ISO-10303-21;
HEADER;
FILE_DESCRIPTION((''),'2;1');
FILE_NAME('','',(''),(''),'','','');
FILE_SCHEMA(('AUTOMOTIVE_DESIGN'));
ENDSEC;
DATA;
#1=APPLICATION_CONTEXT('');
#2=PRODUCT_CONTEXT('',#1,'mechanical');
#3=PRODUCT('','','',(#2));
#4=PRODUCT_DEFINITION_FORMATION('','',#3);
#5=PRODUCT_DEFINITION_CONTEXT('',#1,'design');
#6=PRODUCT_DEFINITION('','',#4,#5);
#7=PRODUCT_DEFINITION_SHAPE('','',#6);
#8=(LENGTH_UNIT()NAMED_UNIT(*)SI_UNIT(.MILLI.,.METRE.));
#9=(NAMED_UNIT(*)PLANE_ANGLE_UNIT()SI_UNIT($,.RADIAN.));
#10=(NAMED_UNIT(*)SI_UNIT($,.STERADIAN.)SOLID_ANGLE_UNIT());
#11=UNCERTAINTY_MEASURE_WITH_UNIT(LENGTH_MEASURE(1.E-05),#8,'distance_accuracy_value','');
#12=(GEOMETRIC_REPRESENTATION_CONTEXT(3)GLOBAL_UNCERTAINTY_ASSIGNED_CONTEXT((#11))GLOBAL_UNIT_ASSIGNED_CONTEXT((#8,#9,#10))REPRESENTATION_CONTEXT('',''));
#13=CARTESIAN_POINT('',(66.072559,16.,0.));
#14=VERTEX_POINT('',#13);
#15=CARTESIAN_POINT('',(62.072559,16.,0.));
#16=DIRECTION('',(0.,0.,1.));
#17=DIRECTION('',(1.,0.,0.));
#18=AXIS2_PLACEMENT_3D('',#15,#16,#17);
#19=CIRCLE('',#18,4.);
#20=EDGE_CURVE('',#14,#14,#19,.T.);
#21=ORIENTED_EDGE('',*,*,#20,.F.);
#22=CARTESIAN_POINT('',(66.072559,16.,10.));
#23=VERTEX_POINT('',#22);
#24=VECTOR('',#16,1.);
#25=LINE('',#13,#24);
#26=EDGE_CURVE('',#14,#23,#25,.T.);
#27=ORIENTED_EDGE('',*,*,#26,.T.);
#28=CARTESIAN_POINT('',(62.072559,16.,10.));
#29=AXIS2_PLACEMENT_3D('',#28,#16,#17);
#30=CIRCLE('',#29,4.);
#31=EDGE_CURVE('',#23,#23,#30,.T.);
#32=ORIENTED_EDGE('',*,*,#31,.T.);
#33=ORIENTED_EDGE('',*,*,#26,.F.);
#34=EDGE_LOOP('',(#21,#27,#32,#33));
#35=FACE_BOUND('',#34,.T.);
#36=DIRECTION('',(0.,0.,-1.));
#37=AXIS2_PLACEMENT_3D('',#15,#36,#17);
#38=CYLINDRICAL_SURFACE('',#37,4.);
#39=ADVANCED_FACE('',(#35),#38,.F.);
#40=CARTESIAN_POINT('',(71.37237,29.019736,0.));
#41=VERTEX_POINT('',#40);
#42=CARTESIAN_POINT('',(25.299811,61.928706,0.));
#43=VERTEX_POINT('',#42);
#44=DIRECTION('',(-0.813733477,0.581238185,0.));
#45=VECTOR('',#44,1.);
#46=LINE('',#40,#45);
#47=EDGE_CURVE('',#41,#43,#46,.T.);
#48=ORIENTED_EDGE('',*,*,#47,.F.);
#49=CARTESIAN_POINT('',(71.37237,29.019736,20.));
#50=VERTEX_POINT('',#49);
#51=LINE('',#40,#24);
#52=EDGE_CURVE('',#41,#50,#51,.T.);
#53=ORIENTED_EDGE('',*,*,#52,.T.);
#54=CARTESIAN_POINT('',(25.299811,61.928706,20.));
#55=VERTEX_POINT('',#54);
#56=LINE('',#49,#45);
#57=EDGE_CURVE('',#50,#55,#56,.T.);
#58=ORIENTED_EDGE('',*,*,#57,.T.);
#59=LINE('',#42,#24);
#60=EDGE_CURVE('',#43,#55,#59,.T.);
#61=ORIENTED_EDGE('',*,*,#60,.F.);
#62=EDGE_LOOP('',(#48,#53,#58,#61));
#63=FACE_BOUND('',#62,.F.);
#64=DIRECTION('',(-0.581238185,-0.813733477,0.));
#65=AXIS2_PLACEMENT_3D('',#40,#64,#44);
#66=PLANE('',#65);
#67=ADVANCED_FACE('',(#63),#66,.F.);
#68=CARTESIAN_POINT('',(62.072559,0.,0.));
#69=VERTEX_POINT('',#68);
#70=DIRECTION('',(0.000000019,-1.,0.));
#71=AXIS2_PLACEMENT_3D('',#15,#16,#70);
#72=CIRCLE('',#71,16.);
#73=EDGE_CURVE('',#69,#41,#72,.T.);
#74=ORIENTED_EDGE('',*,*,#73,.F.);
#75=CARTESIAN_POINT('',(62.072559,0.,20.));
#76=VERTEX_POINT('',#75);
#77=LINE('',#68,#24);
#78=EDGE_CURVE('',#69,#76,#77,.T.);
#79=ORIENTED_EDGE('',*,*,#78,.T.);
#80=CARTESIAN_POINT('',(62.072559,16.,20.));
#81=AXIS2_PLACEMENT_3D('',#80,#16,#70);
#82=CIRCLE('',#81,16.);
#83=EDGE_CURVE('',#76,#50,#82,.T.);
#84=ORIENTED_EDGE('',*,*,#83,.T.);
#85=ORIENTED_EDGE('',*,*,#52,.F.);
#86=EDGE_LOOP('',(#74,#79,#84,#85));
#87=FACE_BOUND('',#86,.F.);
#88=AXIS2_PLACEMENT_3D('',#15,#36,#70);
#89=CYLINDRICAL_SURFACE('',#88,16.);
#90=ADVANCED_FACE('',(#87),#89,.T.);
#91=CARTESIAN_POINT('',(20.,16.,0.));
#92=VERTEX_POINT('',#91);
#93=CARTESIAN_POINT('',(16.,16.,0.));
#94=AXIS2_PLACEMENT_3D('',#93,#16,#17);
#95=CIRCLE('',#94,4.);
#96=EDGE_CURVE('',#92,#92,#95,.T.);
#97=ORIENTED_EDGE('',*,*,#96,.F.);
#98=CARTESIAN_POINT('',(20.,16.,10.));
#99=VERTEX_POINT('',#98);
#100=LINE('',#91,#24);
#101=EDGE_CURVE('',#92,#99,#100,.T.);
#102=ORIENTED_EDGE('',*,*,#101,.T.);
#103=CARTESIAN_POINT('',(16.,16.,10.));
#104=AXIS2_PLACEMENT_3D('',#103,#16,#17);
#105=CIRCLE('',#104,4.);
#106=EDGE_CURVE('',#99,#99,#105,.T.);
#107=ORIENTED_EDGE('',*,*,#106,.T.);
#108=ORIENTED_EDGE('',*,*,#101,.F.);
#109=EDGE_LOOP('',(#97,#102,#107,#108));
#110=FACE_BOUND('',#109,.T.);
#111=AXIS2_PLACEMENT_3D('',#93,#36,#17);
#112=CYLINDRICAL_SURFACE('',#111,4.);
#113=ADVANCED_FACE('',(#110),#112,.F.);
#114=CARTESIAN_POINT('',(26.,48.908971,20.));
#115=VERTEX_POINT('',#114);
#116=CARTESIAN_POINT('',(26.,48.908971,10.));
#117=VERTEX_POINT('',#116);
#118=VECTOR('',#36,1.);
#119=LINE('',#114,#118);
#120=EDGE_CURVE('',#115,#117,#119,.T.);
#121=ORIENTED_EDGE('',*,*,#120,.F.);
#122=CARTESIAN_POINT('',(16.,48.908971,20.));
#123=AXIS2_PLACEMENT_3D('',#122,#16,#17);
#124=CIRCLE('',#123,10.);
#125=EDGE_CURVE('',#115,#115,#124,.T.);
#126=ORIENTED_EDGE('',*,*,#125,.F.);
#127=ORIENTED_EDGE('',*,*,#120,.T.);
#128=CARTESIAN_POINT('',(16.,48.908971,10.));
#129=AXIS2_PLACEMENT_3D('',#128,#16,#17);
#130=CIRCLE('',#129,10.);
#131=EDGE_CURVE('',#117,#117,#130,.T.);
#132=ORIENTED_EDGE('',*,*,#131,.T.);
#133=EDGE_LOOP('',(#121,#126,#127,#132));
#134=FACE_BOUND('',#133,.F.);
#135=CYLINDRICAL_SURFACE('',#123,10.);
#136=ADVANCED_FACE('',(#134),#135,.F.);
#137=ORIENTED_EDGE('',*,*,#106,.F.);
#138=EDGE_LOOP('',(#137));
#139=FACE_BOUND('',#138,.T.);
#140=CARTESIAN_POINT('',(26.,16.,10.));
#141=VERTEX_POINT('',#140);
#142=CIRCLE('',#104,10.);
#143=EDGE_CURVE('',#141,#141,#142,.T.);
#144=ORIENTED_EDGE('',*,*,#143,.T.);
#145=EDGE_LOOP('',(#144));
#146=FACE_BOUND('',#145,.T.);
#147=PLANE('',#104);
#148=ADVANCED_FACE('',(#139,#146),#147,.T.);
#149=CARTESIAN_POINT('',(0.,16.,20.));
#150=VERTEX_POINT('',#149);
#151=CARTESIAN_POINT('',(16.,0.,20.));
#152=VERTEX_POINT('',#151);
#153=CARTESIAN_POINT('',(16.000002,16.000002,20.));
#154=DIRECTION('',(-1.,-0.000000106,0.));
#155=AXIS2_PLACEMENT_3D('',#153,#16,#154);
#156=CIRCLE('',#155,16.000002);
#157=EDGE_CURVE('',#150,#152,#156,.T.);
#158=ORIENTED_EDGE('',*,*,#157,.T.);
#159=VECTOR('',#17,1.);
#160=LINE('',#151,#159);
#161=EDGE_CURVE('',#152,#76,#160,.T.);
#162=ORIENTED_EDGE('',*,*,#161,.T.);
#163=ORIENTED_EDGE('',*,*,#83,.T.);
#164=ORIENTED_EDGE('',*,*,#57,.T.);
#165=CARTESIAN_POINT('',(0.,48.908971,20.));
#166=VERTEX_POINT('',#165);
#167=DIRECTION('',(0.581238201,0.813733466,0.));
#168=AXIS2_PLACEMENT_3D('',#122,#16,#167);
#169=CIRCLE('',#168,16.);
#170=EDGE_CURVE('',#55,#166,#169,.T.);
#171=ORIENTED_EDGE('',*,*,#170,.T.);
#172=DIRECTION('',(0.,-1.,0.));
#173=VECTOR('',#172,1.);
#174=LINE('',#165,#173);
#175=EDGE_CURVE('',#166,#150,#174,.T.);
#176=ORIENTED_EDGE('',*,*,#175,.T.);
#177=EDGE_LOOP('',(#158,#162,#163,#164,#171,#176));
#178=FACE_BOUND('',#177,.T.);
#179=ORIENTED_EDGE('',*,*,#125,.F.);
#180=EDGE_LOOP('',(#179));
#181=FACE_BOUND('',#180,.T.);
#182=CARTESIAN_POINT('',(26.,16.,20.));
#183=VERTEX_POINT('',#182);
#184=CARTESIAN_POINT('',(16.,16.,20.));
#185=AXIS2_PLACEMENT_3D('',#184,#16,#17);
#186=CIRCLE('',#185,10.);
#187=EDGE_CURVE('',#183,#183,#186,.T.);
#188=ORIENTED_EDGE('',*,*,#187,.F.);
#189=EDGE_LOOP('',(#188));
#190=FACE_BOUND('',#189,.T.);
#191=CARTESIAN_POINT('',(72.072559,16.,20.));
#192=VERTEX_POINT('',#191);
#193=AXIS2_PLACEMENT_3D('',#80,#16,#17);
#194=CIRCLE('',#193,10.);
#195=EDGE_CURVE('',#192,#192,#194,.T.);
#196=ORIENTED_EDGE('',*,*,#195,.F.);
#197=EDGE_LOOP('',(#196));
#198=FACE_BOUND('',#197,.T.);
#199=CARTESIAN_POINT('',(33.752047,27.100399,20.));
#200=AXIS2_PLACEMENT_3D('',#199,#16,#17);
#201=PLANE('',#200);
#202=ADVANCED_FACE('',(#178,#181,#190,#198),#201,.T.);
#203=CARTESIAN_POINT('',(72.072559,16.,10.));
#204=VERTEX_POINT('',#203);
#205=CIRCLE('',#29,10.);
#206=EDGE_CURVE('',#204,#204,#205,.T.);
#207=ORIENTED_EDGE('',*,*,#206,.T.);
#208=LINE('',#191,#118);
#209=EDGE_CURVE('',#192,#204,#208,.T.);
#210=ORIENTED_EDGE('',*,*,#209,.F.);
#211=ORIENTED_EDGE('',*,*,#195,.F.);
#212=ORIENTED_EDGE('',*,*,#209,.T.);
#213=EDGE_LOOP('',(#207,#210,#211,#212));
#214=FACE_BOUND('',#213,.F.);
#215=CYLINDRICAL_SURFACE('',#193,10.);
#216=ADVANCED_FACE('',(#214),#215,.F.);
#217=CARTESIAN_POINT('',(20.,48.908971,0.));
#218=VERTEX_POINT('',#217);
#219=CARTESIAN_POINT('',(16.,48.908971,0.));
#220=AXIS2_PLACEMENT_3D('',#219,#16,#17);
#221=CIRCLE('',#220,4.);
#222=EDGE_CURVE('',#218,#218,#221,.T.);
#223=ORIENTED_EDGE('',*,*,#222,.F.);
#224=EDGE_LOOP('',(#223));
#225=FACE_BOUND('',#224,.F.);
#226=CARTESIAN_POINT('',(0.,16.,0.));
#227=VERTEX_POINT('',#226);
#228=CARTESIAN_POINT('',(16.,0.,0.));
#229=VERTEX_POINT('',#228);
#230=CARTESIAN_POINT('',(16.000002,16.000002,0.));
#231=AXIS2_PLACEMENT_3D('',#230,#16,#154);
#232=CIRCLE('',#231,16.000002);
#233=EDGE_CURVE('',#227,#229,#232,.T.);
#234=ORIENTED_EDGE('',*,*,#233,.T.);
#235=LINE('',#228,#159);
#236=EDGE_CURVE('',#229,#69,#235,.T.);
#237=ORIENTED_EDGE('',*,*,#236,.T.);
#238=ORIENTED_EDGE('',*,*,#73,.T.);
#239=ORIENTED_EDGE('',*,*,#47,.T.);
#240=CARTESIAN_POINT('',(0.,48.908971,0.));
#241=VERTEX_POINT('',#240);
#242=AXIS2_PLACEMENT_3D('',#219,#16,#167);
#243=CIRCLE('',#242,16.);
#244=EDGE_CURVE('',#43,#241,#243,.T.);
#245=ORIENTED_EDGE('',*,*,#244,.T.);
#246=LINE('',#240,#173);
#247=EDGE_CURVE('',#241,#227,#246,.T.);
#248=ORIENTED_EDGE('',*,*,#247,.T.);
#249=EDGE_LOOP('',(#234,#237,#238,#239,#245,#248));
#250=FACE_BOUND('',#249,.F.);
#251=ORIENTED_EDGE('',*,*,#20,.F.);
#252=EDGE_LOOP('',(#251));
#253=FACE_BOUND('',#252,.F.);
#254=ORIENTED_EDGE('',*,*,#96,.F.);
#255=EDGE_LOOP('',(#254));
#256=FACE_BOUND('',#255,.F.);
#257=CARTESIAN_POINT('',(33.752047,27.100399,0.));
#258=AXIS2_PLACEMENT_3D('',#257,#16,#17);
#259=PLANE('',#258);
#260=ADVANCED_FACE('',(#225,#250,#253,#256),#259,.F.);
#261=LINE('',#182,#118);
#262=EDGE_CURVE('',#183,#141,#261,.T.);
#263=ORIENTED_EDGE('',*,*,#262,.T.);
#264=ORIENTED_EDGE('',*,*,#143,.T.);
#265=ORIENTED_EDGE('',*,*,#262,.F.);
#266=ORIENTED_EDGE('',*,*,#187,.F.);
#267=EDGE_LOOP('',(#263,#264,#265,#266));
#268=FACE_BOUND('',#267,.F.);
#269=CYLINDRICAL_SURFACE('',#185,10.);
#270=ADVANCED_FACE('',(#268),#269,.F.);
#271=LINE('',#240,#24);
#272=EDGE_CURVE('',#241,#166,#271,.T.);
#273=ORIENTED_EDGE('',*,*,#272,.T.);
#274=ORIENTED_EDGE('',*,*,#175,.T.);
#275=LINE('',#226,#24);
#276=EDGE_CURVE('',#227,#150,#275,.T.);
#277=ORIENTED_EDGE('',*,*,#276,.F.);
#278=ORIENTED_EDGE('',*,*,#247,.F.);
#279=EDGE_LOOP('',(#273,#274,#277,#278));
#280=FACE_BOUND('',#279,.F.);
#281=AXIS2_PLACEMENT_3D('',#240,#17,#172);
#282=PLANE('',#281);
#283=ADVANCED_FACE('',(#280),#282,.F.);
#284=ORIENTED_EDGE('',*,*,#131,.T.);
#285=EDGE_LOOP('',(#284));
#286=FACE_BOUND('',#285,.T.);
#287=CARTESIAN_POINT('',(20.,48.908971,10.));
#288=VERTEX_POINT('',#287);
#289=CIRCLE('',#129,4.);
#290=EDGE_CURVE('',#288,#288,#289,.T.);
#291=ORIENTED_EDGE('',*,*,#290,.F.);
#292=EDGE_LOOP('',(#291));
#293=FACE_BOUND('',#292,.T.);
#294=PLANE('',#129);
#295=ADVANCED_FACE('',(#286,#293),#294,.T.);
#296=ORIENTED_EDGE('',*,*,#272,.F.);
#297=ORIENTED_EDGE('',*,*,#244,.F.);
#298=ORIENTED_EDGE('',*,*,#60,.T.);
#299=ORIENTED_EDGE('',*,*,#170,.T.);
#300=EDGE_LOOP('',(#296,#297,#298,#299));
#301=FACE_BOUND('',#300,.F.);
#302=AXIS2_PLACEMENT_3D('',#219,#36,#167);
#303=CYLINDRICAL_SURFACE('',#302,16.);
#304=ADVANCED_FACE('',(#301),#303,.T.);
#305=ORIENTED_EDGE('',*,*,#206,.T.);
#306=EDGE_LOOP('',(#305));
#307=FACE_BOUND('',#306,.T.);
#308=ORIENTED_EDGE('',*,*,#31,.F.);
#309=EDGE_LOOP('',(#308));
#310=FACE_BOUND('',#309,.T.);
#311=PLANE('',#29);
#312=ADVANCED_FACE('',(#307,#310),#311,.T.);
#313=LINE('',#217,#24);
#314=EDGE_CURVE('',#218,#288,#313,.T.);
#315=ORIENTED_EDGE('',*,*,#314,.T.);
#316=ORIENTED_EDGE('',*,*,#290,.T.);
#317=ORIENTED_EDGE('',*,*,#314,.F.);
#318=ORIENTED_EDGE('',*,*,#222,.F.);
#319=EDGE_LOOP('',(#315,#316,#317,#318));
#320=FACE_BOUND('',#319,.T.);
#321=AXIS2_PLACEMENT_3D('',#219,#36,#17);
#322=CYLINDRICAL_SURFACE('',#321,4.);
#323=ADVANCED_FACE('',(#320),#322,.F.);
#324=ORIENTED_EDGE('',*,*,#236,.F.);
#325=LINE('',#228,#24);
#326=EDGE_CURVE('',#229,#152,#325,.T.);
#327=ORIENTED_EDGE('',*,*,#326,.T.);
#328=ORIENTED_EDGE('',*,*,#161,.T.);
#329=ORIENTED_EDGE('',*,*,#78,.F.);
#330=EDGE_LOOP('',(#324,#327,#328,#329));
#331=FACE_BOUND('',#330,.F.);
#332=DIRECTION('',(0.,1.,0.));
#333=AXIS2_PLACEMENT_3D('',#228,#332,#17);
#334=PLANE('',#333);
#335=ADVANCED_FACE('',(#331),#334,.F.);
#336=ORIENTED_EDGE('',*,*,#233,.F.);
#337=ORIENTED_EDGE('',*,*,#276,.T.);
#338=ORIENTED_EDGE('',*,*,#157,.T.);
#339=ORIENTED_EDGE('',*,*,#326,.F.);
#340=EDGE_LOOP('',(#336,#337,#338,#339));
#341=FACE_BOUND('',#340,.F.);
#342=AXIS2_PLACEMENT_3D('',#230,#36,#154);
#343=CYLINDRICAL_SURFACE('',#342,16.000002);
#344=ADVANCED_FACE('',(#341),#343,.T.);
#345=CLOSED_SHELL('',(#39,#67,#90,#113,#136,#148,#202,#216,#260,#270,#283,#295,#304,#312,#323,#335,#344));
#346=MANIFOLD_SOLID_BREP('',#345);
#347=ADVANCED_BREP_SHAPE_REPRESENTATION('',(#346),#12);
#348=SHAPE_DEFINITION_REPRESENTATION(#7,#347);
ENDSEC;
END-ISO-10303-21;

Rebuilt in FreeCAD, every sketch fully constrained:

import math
import FreeCAD as App
import Part
import Sketcher
from FreeCAD import Vector

doc = App.newDocument("Part")
params = doc.addObject("Spreadsheet::Sheet", "Params")
for row, (alias, value) in enumerate([
    ("sketch1_diameter", "8 mm"),
    ("sketch1_radius", "16.000002 mm"),
    ("pad1_length", "20 mm"),
    ("sketch2_diameter", "20 mm"),
    ("sketch2_diameter2", "8 mm"),
    ("pocket1_length", "10 mm"),
], start=1):
    params.set(f"A{row}", alias)
    params.set(f"B{row}", "=" + value)
    params.setAlias(f"B{row}", alias)

body = doc.addObject("PartDesign::Body", "Body")

# Sketch on XY plane
sketch1 = doc.addObject("Sketcher::SketchObject", "Sketch")
body.addObject(sketch1)
sketch1.AttachmentSupport = (doc.XY_Plane, [""])
sketch1.MapMode = "FlatFace"
sketch1.addGeometry(Part.ArcOfCircle(Part.Circle(Vector(16, 16, 0), Vector(0, 0, 1), 16), math.radians(-180), math.radians(-90)), False)
sketch1.addGeometry(Part.LineSegment(Vector(16, 0, 0), Vector(62.1, 0, 0)), False)
sketch1.addGeometry(Part.ArcOfCircle(Part.Circle(Vector(62.1, 16, 0), Vector(0, 0, 1), 16), math.radians(-90), math.radians(54)), False)
sketch1.addGeometry(Part.LineSegment(Vector(71.4, 29, 0), Vector(25.3, 61.9, 0)), False)
sketch1.addGeometry(Part.ArcOfCircle(Part.Circle(Vector(16, 48.9, 0), Vector(0, 0, 1), 16), math.radians(54), math.radians(180)), False)
sketch1.addGeometry(Part.LineSegment(Vector(0, 48.9, 0), Vector(0, 16, 0)), False)
sketch1.addGeometry(Part.Circle(Vector(16, 16, 0), Vector(0, 0, 1), 4), False)
sketch1.addGeometry(Part.Circle(Vector(62.1, 16, 0), Vector(0, 0, 1), 4), False)
sketch1.addGeometry(Part.Circle(Vector(16, 48.9, 0), Vector(0, 0, 1), 4), False)
sketch1.addConstraint(Sketcher.Constraint("Tangent", 0, 2, 1, 1))
sketch1.addConstraint(Sketcher.Constraint("Tangent", 1, 2, 2, 1))
sketch1.addConstraint(Sketcher.Constraint("Tangent", 2, 2, 3, 1))
sketch1.addConstraint(Sketcher.Constraint("Tangent", 3, 2, 4, 1))
sketch1.addConstraint(Sketcher.Constraint("Tangent", 4, 2, 5, 1))
sketch1.addConstraint(Sketcher.Constraint("Tangent", 5, 2, 0, 1))
sketch1.addConstraint(Sketcher.Constraint("Horizontal", 1))
sketch1.addConstraint(Sketcher.Constraint("Vertical", 5))
sketch1.addConstraint(Sketcher.Constraint("Coincident", 6, 3, 0, 3))
sketch1.addConstraint(Sketcher.Constraint("Coincident", 7, 3, 2, 3))
sketch1.addConstraint(Sketcher.Constraint("Coincident", 8, 3, 4, 3))
sketch1.addConstraint(Sketcher.Constraint("Equal", 0, 2))
sketch1.addConstraint(Sketcher.Constraint("Equal", 2, 4))
sketch1.addConstraint(Sketcher.Constraint("Equal", 6, 7))
sketch1.addConstraint(Sketcher.Constraint("Equal", 7, 8))
sketch1.addConstraint(Sketcher.Constraint("PointOnObject", 0, 2, -1))
sketch1.addConstraint(Sketcher.Constraint("PointOnObject", 4, 2, -2))
sketch1.addConstraint(Sketcher.Constraint("Diameter", 6, 8.0))
sketch1.addConstraint(Sketcher.Constraint("Radius", 0, 16.000002))
sketch1.addConstraint(Sketcher.Constraint("DistanceX", 1, 1, 1, 2, 46.072559))
sketch1.addConstraint(Sketcher.Constraint("DistanceY", 5, 2, 5, 1, 32.908971))
sketch1.setExpression("Constraints[17]", "Params.sketch1_diameter")
sketch1.setExpression("Constraints[18]", "Params.sketch1_radius")
pad1 = doc.addObject("PartDesign::Pad", "Pad")
body.addObject(pad1)
pad1.Profile = sketch1
pad1.setExpression("Length", "Params.pad1_length")

# Sketch on XY plane
sketch2 = doc.addObject("Sketcher::SketchObject", "Sketch001")
body.addObject(sketch2)
sketch2.AttachmentSupport = (doc.XY_Plane, [""])
sketch2.MapMode = "FlatFace"
sketch2.AttachmentOffset = App.Placement(Vector(0, 0, 20), App.Rotation())
sketch2.addGeometry(Part.Circle(Vector(16, 48.9, 0), Vector(0, 0, 1), 10), False)
sketch2.addGeometry(Part.Circle(Vector(16, 48.9, 0), Vector(0, 0, 1), 4), False)
sketch2.addGeometry(Part.Circle(Vector(16, 16, 0), Vector(0, 0, 1), 10), False)
sketch2.addGeometry(Part.Circle(Vector(16, 16, 0), Vector(0, 0, 1), 4), False)
sketch2.addGeometry(Part.Circle(Vector(62.1, 16, 0), Vector(0, 0, 1), 10), False)
sketch2.addGeometry(Part.Circle(Vector(62.1, 16, 0), Vector(0, 0, 1), 4), False)
sketch2.addConstraint(Sketcher.Constraint("Coincident", 1, 3, 0, 3))
sketch2.addConstraint(Sketcher.Constraint("Coincident", 3, 3, 2, 3))
sketch2.addConstraint(Sketcher.Constraint("Coincident", 5, 3, 4, 3))
sketch2.addConstraint(Sketcher.Constraint("Equal", 0, 2))
sketch2.addConstraint(Sketcher.Constraint("Equal", 1, 3))
sketch2.addConstraint(Sketcher.Constraint("Equal", 2, 4))
sketch2.addConstraint(Sketcher.Constraint("Equal", 3, 5))
sketch2.addConstraint(Sketcher.Constraint("Horizontal", 3, 3, 4, 3))
sketch2.addConstraint(Sketcher.Constraint("Vertical", 1, 3, 2, 3))
sketch2.addConstraint(Sketcher.Constraint("Diameter", 0, 20.0))
sketch2.addConstraint(Sketcher.Constraint("Diameter", 1, 8.0))
sketch2.addConstraint(Sketcher.Constraint("DistanceX", -1, 1, 0, 3, 16.0))
sketch2.addConstraint(Sketcher.Constraint("DistanceY", -1, 1, 2, 3, 16.0))
sketch2.addConstraint(Sketcher.Constraint("DistanceY", -1, 1, 0, 3, 48.908971))
sketch2.addConstraint(Sketcher.Constraint("DistanceX", -1, 1, 4, 3, 62.072559))
sketch2.setExpression("Constraints[9]", "Params.sketch2_diameter")
sketch2.setExpression("Constraints[10]", "Params.sketch2_diameter2")
pocket1 = doc.addObject("PartDesign::Pocket", "Pocket")
body.addObject(pocket1)
pocket1.Profile = sketch2
pocket1.setExpression("Length", "Params.pocket1_length")

doc.recompute()
